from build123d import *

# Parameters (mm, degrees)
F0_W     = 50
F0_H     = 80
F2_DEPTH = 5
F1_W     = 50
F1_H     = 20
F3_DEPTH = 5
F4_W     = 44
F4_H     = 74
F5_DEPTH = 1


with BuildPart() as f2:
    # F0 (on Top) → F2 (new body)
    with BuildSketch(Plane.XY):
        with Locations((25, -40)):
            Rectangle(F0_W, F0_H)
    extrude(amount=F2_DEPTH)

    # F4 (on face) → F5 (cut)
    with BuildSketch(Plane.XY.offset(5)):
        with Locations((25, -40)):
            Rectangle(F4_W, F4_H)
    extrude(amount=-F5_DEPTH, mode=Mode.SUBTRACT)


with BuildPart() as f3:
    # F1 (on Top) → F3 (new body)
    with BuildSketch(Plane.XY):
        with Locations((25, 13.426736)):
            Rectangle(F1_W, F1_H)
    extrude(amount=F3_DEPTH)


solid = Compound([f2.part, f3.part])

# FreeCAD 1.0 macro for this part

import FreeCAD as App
import Part
import Sketcher

V = App.Vector
Q = App.Units.Quantity


def add_polygon(sketch, points):
    """Adds a closed chain of lines whose ends are joined by coincident constraints."""
    first, n = sketch.GeometryCount, len(points)
    for a, b in zip(points, points[1:] + points[:1]):
        sketch.addGeometry(Part.LineSegment(App.Vector(*a, 0), App.Vector(*b, 0)), False)
    for i in range(n):
        sketch.addConstraint(Sketcher.Constraint("Coincident", first + i, 2, first + (i + 1) % n, 1))

doc = App.newDocument("Part")
body = doc.addObject("PartDesign::Body", "Body")

sketch1 = body.newObject("Sketcher::SketchObject", "Sketch")
sketch1.AttachmentSupport = (doc.getObject("XY_Plane"), [""])
sketch1.MapMode = "FlatFace"
add_polygon(sketch1, [(0, 0), (0, -80), (50, -80), (50, 0)])
sketch1.addConstraint([
    Sketcher.Constraint("Vertical", 0),
    Sketcher.Constraint("Horizontal", 1),
    Sketcher.Constraint("Vertical", 2),
    Sketcher.Constraint("Horizontal", 3),
    Sketcher.Constraint("Coincident", 3, 2, -1, 1),
    Sketcher.Constraint("DistanceX", 1, 1, 1, 2, Q("50 mm")),
    Sketcher.Constraint("DistanceY", 0, 2, 0, 1, Q("80 mm")),
])
pad1 = body.newObject("PartDesign::Pad", "Pad")
pad1.Profile = sketch1
pad1.Length = 5

sketch2 = body.newObject("Sketcher::SketchObject", "Sketch001")
sketch2.AttachmentSupport = (doc.getObject("XY_Plane"), [""])
sketch2.MapMode = "FlatFace"
sketch2.AttachmentOffset = App.Placement(V(0, 0, 5), App.Rotation())
add_polygon(sketch2, [(3, -3), (3, -77), (47, -77), (47, -3)])
sketch2.addConstraint([
    Sketcher.Constraint("Vertical", 0),
    Sketcher.Constraint("Horizontal", 1),
    Sketcher.Constraint("Vertical", 2),
    Sketcher.Constraint("Horizontal", 3),
    Sketcher.Constraint("DistanceX", 1, 1, 1, 2, Q("44 mm")),
    Sketcher.Constraint("DistanceY", 0, 2, 0, 1, Q("74 mm")),
    Sketcher.Constraint("DistanceX", -1, 1, 0, 2, Q("3 mm")),
    Sketcher.Constraint("DistanceY", 0, 2, -1, 1, Q("77 mm")),
])
pocket1 = body.newObject("PartDesign::Pocket", "Pocket")
pocket1.Profile = sketch2
pocket1.Length = 1
body2 = doc.addObject("PartDesign::Body", "Body001")

sketch3 = body2.newObject("Sketcher::SketchObject", "Sketch002")
sketch3.AttachmentSupport = (doc.getObject("XY_Plane001"), [""])
sketch3.MapMode = "FlatFace"
add_polygon(sketch3, [(0, 23.426736), (0, 3.426736), (50, 3.426736), (50, 23.426736)])
sketch3.addConstraint([
    Sketcher.Constraint("Vertical", 0),
    Sketcher.Constraint("Horizontal", 1),
    Sketcher.Constraint("Vertical", 2),
    Sketcher.Constraint("Horizontal", 3),
    Sketcher.Constraint("PointOnObject", 0, 2, -2),
    Sketcher.Constraint("DistanceX", 1, 1, 1, 2, Q("50 mm")),
    Sketcher.Constraint("DistanceY", 0, 2, 0, 1, Q("20 mm")),
    Sketcher.Constraint("DistanceY", -1, 1, 0, 2, Q("3.426736 mm")),
])
pad2 = body2.newObject("PartDesign::Pad", "Pad001")
pad2.Profile = sketch3
pad2.Length = 5

doc.recompute()
